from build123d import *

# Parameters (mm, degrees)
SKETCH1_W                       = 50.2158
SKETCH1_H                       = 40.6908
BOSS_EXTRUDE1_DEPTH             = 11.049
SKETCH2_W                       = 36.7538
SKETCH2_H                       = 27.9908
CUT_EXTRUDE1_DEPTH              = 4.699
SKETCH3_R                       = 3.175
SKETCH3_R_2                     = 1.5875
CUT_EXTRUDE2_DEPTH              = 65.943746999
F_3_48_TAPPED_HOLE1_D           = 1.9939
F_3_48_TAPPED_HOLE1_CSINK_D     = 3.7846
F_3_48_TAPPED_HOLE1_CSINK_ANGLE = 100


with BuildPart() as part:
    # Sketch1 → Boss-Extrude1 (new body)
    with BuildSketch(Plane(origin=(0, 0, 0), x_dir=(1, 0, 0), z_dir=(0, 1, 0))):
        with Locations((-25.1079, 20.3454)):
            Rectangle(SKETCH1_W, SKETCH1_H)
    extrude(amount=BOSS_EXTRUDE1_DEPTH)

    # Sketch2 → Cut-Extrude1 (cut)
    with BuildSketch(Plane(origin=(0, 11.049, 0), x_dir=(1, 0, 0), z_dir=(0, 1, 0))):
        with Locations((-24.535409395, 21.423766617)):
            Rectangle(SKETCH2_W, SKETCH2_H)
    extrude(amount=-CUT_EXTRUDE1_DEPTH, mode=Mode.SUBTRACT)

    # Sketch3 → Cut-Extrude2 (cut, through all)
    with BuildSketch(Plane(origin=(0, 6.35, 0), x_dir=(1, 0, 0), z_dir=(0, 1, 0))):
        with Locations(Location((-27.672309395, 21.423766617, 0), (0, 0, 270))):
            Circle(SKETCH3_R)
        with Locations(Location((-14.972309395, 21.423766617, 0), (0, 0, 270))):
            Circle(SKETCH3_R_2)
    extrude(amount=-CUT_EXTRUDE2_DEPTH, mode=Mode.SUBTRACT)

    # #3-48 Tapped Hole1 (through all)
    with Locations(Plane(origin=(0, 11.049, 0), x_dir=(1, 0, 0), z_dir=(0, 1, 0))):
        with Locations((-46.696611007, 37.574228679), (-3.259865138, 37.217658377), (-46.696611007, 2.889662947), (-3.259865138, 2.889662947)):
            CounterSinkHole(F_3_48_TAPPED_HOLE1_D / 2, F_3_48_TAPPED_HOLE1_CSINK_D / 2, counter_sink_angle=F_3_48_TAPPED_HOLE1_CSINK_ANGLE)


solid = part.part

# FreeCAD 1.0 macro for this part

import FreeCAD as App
import Part
import Sketcher
Q = App.Units.Quantity

doc = App.newDocument("Part")
body = doc.addObject("PartDesign::Body", "Body")

# Sketch on XZ plane
sketch1 = body.newObject("Sketcher::SketchObject", "Sketch")
sketch1.AttachmentSupport = (doc.getObject("XZ_Plane"), [""])
sketch1.MapMode = "FlatFace"
sketch1.addGeometry([
    Part.LineSegment(App.Vector(-50, -41, 0), App.Vector(-50, 0, 0)),
    Part.LineSegment(App.Vector(-50, 0, 0), App.Vector(0, 0, 0)),
    Part.LineSegment(App.Vector(0, 0, 0), App.Vector(0, -41, 0)),
    Part.LineSegment(App.Vector(0, -41, 0), App.Vector(-50, -41, 0)),
], False)
sketch1.addConstraint([
    Sketcher.Constraint("Coincident", 0, 2, 1, 1),
    Sketcher.Constraint("Coincident", 1, 2, 2, 1),
    Sketcher.Constraint("Coincident", 2, 2, 3, 1),
    Sketcher.Constraint("Coincident", 3, 2, 0, 1),
    Sketcher.Constraint("Vertical", 0),
    Sketcher.Constraint("Horizontal", 1),
    Sketcher.Constraint("Vertical", 2),
    Sketcher.Constraint("Horizontal", 3),
    Sketcher.Constraint("Coincident", 1, 2, -1, 1),
    Sketcher.Constraint("DistanceX", 1, 1, 1, 2, Q("1.977 in")),
    Sketcher.Constraint("DistanceY", 0, 1, 0, 2, Q("1.602 in")),
])
pad1 = body.newObject("PartDesign::Pad", "Pad")
pad1.Profile = sketch1
pad1.Length = Q("0.435 in")
pad1.Reversed = True

# Sketch on XZ plane
sketch2 = body.newObject("Sketcher::SketchObject", "Sketch001")
sketch2.AttachmentSupport = (doc.getObject("XZ_Plane"), [""])
sketch2.MapMode = "FlatFace"
sketch2.AttachmentOffset = App.Placement(App.Vector(0, 0, -0.435 * 25.4), App.Rotation())
sketch2.addGeometry([
    Part.LineSegment(App.Vector(-43, -35, 0), App.Vector(-43, -7, 0)),
    Part.LineSegment(App.Vector(-43, -7, 0), App.Vector(-6, -7, 0)),
    Part.LineSegment(App.Vector(-6, -7, 0), App.Vector(-6, -35, 0)),
    Part.LineSegment(App.Vector(-6, -35, 0), App.Vector(-43, -35, 0)),
], False)
sketch2.addConstraint([
    Sketcher.Constraint("Coincident", 0, 2, 1, 1),
    Sketcher.Constraint("Coincident", 1, 2, 2, 1),
    Sketcher.Constraint("Coincident", 2, 2, 3, 1),
    Sketcher.Constraint("Coincident", 3, 2, 0, 1),
    Sketcher.Constraint("Vertical", 0),
    Sketcher.Constraint("Horizontal", 1),
    Sketcher.Constraint("Vertical", 2),
    Sketcher.Constraint("Horizontal", 3),
    Sketcher.Constraint("DistanceX", 1, 1, 1, 2, Q("1.447 in")),
    Sketcher.Constraint("DistanceY", 0, 1, 0, 2, Q("1.102 in")),
    Sketcher.Constraint("DistanceX", 0, 2, -1, 1, Q("42.912309 mm")),
    Sketcher.Constraint("DistanceY", 0, 2, -1, 1, Q("7.428367 mm")),
])
pocket1 = body.newObject("PartDesign::Pocket", "Pocket")
pocket1.Profile = sketch2
pocket1.Length = Q("0.185 in")
pocket1.Reversed = True

# Sketch on XZ plane
sketch3 = body.newObject("Sketcher::SketchObject", "Sketch002")
sketch3.AttachmentSupport = (doc.getObject("XZ_Plane"), [""])
sketch3.MapMode = "FlatFace"
sketch3.AttachmentOffset = App.Placement(App.Vector(0, 0, -0.25 * 25.4), App.Rotation())
sketch3.addGeometry([
    Part.Circle(App.Vector(-27.7, -21.4, 0), App.Vector(0, 0, 1), 3.2),
    Part.Circle(App.Vector(-15, -21.4, 0), App.Vector(0, 0, 1), 1.6),
], False)
sketch3.addConstraint([
    Sketcher.Constraint("Horizontal", 0, 3, 1, 3),
    Sketcher.Constraint("Diameter", 0, Q("0.25 in")),
    Sketcher.Constraint("Diameter", 1, Q("0.125 in")),
    Sketcher.Constraint("DistanceX", 0, 3, 1, 3, Q("0.5 in")),
    Sketcher.Constraint("DistanceX", 0, 3, -1, 1, Q("27.672309 mm")),
    Sketcher.Constraint("DistanceY", 0, 3, -1, 1, Q("21.423767 mm")),
])
pocket2 = body.newObject("PartDesign::Pocket", "Pocket001")
pocket2.Profile = sketch3
pocket2.Type = "ThroughAll"
pocket2.Reversed = True

# Sketch on XZ plane
sketch4 = body.newObject("Sketcher::SketchObject", "Sketch003")
sketch4.AttachmentSupport = (doc.getObject("XZ_Plane"), [""])
sketch4.MapMode = "FlatFace"
sketch4.AttachmentOffset = App.Placement(App.Vector(0, 0, -0.435 * 25.4), App.Rotation())
sketch4.addGeometry([
    Part.Circle(App.Vector(-46.7, -37.6, 0), App.Vector(0, 0, 1), 1),
    Part.Circle(App.Vector(-3.3, -37.2, 0), App.Vector(0, 0, 1), 1),
    Part.Circle(App.Vector(-46.7, -2.9, 0), App.Vector(0, 0, 1), 1),
    Part.Circle(App.Vector(-3.3, -2.9, 0), App.Vector(0, 0, 1), 1),
], False)
sketch4.addConstraint([
    Sketcher.Constraint("Equal", 0, 1),
    Sketcher.Constraint("Equal", 1, 2),
    Sketcher.Constraint("Equal", 2, 3),
    Sketcher.Constraint("Horizontal", 2, 3, 3, 3),
    Sketcher.Constraint("Vertical", 0, 3, 2, 3),
    Sketcher.Constraint("Vertical", 1, 3, 3, 3),
    Sketcher.Constraint("Diameter", 0, Q("0.0785 in")),
    Sketcher.Constraint("DistanceX", 0, 3, -1, 1, Q("46.696611 mm")),
    Sketcher.Constraint("DistanceY", 0, 3, -1, 1, Q("37.574229 mm")),
    Sketcher.Constraint("DistanceY", 1, 3, -1, 1, Q("37.217658 mm")),
    Sketcher.Constraint("DistanceX", 1, 3, -1, 1, Q("3.259865 mm")),
    Sketcher.Constraint("DistanceY", 2, 3, -1, 1, Q("2.889663 mm")),
])
doc.recompute()
hole = body.newObject("PartDesign::Hole", "Hole")
hole.Profile = sketch4
hole.ThreadType = "None"
hole.Diameter = Q("0.0785 in")
hole.DepthType = "ThroughAll"
hole.HoleCutType = "Countersink"
hole.HoleCutDiameter = Q("0.149 in")
hole.HoleCutCountersinkAngle = 100
hole.Reversed = True

doc.recompute()
